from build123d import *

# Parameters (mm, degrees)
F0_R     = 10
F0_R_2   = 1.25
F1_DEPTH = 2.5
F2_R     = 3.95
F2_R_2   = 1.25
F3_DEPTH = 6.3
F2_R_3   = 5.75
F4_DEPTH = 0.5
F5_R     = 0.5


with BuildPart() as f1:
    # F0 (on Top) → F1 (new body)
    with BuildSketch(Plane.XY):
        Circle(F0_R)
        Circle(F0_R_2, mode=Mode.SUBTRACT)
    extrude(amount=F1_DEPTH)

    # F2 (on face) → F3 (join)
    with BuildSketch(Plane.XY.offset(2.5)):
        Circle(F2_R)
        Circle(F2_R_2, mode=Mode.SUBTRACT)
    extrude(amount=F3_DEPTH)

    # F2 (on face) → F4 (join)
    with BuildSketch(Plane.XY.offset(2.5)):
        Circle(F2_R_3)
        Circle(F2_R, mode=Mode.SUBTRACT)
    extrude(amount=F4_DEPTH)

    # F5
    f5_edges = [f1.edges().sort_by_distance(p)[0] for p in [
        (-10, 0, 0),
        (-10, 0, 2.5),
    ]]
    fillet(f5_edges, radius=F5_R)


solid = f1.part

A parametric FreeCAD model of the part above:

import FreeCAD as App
import Part
import Sketcher
from FreeCAD import Vector


def edges_at(feature, points):
    """Names of the edges that pass closest to the given points."""
    edges = feature.Shape.Edges
    near = lambda p: min(range(len(edges)), key=lambda i: edges[i].distToShape(Part.Vertex(*p))[0])
    return sorted({f"Edge{near(p) + 1}" for p in points})

doc = App.newDocument("Part")
params = doc.addObject("Spreadsheet::Sheet", "Params")
for row, (alias, value) in enumerate([
    ("sketch1_diameter", "20 mm"),
    ("sketch1_diameter2", "2.5 mm"),
    ("pad1_length", "2.5 mm"),
    ("sketch2_diameter", "7.9 mm"),
    ("sketch2_diameter2", "2.5 mm"),
    ("pad2_length", "6.3 mm"),
    ("sketch3_diameter", "11.5 mm"),
    ("sketch3_diameter2", "7.9 mm"),
    ("pad3_length", "0.5 mm"),
    ("fillet_radius", "0.5 mm"),
], start=1):
    params.set(f"A{row}", alias)
    params.set(f"B{row}", "=" + value)
    params.setAlias(f"B{row}", alias)

body = doc.addObject("PartDesign::Body", "Body")

sketch1 = doc.addObject("Sketcher::SketchObject", "Sketch")
body.addObject(sketch1)
sketch1.AttachmentSupport = (doc.XY_Plane, [""])
sketch1.MapMode = "FlatFace"
sketch1.addGeometry([
    Part.Circle(Vector(0, 0, 0), Vector(0, 0, 1), 10),
    Part.Circle(Vector(0, 0, 0), Vector(0, 0, 1), 1.25),
], False)
sketch1.addConstraint([
    Sketcher.Constraint("Coincident", 0, 3, -1, 1),
    Sketcher.Constraint("Coincident", 1, 3, -1, 1),
    Sketcher.Constraint("Diameter", 0, 20.0),
    Sketcher.Constraint("Diameter", 1, 2.5),
])
sketch1.setExpression("Constraints[2]", "Params.sketch1_diameter")
sketch1.setExpression("Constraints[3]", "Params.sketch1_diameter2")
pad1 = doc.addObject("PartDesign::Pad", "Pad")
body.addObject(pad1)
pad1.Profile = sketch1
pad1.setExpression("Length", "Params.pad1_length")

sketch2 = doc.addObject("Sketcher::SketchObject", "Sketch001")
body.addObject(sketch2)
sketch2.AttachmentSupport = (doc.XY_Plane, [""])
sketch2.MapMode = "FlatFace"
sketch2.AttachmentOffset = App.Placement(Vector(0, 0, 2.5), App.Rotation())
sketch2.addGeometry([
    Part.Circle(Vector(0, 0, 0), Vector(0, 0, 1), 3.95),
    Part.Circle(Vector(0, 0, 0), Vector(0, 0, 1), 1.25),
], False)
sketch2.addConstraint([
    Sketcher.Constraint("Coincident", 0, 3, -1, 1),
    Sketcher.Constraint("Coincident", 1, 3, -1, 1),
    Sketcher.Constraint("Diameter", 0, 7.9),
    Sketcher.Constraint("Diameter", 1, 2.5),
])
sketch2.setExpression("Constraints[2]", "Params.sketch2_diameter")
sketch2.setExpression("Constraints[3]", "Params.sketch2_diameter2")
pad2 = doc.addObject("PartDesign::Pad", "Pad001")
body.addObject(pad2)
pad2.Profile = sketch2
pad2.setExpression("Length", "Params.pad2_length")

sketch3 = doc.addObject("Sketcher::SketchObject", "Sketch002")
body.addObject(sketch3)
sketch3.AttachmentSupport = (doc.XY_Plane, [""])
sketch3.MapMode = "FlatFace"
sketch3.AttachmentOffset = App.Placement(Vector(0, 0, 2.5), App.Rotation())
sketch3.addGeometry([
    Part.Circle(Vector(0, 0, 0), Vector(0, 0, 1), 5.75),
    Part.Circle(Vector(0, 0, 0), Vector(0, 0, 1), 3.95),
], False)
sketch3.addConstraint([
    Sketcher.Constraint("Coincident", 0, 3, -1, 1),
    Sketcher.Constraint("Coincident", 1, 3, -1, 1),
    Sketcher.Constraint("Diameter", 0, 11.5),
    Sketcher.Constraint("Diameter", 1, 7.9),
])
sketch3.setExpression("Constraints[2]", "Params.sketch3_diameter")
sketch3.setExpression("Constraints[3]", "Params.sketch3_diameter2")
pad3 = doc.addObject("PartDesign::Pad", "Pad002")
body.addObject(pad3)
pad3.Profile = sketch3
pad3.setExpression("Length", "Params.pad3_length")
doc.recompute()

fillet = doc.addObject("PartDesign::Fillet", "Fillet")
body.addObject(fillet)
fillet.Base = (pad3, edges_at(pad3, [(-10, 0, 0), (-10, 0, 2.5)]))
fillet.setExpression("Radius", "Params.fillet_radius")

doc.recompute()
